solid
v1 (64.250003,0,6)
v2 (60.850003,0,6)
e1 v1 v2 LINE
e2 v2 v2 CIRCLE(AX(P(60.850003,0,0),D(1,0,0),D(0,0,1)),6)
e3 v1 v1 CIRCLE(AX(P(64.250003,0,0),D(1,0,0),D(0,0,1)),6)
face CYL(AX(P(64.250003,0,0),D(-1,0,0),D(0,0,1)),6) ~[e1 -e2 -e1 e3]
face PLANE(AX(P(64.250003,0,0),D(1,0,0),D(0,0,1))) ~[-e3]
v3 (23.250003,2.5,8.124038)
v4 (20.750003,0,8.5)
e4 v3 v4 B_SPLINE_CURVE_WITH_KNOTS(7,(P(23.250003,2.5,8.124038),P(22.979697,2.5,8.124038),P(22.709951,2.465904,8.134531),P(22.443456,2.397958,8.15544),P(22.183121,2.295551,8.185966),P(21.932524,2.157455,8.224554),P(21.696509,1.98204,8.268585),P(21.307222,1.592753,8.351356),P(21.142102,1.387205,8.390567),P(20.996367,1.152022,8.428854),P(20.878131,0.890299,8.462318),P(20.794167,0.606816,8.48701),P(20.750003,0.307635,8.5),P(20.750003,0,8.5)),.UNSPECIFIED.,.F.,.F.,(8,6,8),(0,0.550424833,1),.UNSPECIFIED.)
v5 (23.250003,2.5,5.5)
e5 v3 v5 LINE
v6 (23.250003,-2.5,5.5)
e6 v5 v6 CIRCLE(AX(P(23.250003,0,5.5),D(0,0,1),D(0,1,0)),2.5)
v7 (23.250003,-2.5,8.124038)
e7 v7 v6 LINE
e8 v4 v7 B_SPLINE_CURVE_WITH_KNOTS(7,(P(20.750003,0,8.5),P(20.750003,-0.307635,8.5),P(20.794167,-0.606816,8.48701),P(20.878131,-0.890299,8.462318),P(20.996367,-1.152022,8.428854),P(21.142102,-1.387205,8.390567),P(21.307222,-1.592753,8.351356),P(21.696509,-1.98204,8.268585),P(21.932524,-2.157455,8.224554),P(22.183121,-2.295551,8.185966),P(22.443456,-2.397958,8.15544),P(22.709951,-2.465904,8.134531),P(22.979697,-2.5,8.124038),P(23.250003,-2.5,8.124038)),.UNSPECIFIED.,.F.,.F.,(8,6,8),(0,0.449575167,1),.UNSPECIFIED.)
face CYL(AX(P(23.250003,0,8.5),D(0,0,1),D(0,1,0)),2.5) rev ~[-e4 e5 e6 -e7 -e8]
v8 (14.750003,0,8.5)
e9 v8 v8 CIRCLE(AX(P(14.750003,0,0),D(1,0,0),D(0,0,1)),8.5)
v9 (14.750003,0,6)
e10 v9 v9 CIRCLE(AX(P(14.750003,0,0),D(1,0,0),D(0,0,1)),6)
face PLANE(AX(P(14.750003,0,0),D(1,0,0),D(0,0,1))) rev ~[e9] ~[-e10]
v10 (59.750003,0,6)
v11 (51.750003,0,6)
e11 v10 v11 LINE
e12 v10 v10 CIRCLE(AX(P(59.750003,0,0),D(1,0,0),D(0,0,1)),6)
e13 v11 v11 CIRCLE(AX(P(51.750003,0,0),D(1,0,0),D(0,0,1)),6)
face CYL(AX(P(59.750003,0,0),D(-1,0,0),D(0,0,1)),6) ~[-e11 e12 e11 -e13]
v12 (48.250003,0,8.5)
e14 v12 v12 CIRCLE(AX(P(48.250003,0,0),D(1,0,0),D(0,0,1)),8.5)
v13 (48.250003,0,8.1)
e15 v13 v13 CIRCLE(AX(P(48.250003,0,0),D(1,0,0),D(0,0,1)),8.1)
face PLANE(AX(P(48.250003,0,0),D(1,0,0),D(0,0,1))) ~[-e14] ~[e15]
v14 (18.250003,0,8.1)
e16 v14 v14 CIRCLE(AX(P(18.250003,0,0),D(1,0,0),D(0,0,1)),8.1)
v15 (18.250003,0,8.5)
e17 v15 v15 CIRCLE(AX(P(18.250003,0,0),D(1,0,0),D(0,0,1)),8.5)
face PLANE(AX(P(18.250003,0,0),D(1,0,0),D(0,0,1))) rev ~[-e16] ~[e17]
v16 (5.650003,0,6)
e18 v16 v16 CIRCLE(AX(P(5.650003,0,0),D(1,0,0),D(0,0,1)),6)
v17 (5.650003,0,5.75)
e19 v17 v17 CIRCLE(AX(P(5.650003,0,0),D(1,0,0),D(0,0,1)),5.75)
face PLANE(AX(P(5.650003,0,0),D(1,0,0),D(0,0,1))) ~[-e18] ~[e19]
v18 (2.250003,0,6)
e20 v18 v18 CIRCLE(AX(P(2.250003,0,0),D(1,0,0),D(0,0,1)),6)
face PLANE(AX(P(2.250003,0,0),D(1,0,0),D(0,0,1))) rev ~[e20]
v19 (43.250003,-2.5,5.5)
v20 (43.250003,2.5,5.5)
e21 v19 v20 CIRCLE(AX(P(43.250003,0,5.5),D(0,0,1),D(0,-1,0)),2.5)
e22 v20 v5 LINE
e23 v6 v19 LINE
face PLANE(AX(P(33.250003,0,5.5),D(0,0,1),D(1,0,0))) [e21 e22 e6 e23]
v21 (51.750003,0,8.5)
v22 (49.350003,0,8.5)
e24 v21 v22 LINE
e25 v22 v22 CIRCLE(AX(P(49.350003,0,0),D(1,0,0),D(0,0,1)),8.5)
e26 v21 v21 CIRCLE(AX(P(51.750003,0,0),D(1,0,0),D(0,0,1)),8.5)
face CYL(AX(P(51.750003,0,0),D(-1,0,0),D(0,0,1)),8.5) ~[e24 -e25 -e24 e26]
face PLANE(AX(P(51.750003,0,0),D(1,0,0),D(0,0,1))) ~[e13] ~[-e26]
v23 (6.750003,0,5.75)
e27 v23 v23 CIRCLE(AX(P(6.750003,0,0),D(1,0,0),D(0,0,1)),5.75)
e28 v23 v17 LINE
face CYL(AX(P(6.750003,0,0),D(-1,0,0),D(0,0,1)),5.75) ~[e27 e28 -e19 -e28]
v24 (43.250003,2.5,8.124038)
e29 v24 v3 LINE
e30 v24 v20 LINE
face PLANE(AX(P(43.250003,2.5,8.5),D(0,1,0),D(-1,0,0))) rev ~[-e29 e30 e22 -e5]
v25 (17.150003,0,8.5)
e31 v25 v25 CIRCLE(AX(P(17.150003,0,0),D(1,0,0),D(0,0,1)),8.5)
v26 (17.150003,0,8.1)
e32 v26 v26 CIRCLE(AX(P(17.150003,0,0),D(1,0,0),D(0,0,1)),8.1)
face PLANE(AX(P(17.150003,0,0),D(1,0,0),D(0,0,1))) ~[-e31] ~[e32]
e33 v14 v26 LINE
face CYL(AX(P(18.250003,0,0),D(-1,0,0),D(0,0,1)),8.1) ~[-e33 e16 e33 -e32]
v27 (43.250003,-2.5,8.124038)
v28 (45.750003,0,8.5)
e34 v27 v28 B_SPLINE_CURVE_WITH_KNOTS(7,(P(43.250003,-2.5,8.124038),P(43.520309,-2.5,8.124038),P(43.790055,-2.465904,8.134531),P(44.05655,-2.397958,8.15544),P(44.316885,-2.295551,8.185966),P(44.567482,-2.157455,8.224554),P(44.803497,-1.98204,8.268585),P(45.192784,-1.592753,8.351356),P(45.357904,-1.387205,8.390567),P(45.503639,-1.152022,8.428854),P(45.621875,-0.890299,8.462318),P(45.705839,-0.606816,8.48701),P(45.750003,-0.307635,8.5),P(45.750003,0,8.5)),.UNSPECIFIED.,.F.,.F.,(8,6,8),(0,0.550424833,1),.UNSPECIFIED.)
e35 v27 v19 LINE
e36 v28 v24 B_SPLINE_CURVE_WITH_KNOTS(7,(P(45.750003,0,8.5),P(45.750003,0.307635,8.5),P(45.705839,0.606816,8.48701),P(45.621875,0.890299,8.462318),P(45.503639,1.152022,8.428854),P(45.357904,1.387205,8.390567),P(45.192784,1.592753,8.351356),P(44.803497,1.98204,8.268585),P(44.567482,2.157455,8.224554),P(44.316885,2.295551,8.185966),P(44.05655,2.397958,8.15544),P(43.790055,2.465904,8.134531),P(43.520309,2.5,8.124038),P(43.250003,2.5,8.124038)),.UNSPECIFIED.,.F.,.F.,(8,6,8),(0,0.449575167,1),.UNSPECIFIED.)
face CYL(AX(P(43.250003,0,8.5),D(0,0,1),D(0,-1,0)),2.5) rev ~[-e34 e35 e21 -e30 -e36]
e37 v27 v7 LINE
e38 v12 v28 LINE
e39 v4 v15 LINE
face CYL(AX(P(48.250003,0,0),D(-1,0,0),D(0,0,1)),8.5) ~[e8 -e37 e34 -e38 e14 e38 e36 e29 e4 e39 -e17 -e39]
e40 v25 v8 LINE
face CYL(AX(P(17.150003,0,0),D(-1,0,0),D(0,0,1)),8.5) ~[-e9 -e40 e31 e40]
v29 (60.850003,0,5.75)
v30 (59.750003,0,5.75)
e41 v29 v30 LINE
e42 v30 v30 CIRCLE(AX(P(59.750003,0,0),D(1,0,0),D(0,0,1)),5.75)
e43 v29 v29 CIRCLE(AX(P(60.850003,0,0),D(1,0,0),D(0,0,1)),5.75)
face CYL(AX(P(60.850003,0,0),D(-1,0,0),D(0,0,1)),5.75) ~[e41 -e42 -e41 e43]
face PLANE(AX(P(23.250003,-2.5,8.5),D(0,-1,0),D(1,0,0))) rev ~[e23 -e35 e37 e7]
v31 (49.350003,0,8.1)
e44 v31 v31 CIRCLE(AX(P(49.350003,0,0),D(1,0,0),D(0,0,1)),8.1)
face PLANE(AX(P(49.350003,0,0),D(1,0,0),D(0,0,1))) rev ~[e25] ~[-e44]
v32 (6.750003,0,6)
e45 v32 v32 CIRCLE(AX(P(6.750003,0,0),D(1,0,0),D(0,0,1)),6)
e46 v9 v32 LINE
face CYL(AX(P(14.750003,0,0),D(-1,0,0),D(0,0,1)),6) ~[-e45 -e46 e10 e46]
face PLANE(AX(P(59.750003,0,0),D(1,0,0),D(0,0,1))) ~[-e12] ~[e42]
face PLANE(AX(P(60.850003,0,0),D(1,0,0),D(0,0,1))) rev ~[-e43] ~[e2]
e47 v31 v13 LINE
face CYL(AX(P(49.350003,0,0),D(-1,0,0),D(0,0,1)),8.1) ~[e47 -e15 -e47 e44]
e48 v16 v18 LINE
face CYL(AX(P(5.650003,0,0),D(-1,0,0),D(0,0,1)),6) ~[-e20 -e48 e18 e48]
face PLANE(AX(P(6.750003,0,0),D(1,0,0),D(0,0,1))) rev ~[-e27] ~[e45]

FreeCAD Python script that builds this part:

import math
import FreeCAD as App
import Part
import Sketcher
from FreeCAD import Vector
Q = App.Units.Quantity

doc = App.newDocument("Part")
body = doc.addObject("PartDesign::Body", "Body")

sketch1 = body.newObject("Sketcher::SketchObject", "Sketch")
sketch1.AttachmentSupport = (doc.getObject("XZ_Plane"), [""])
sketch1.MapMode = "FlatFace"
sketch1.addGeometry([
    Part.LineSegment(Vector(2.25, 6, 0), Vector(2.25, 0, 0)),
    Part.LineSegment(Vector(2.25, 0, 0), Vector(64.25, 0, 0)),
    Part.LineSegment(Vector(64.25, 0, 0), Vector(64.25, 6, 0)),
    Part.LineSegment(Vector(64.25, 6, 0), Vector(60.85, 6, 0)),
    Part.LineSegment(Vector(60.85, 6, 0), Vector(60.85, 5.75, 0)),
    Part.LineSegment(Vector(60.85, 5.75, 0), Vector(59.75, 5.75, 0)),
    Part.LineSegment(Vector(59.75, 5.75, 0), Vector(59.75, 6, 0)),
    Part.LineSegment(Vector(59.75, 6, 0), Vector(51.75, 6, 0)),
    Part.LineSegment(Vector(51.75, 6, 0), Vector(51.75, 8.5, 0)),
    Part.LineSegment(Vector(51.75, 8.5, 0), Vector(49.35, 8.5, 0)),
    Part.LineSegment(Vector(49.35, 8.5, 0), Vector(49.35, 8.1, 0)),
    Part.LineSegment(Vector(49.35, 8.1, 0), Vector(48.25, 8.1, 0)),
    Part.LineSegment(Vector(48.25, 8.1, 0), Vector(48.25, 8.5, 0)),
    Part.LineSegment(Vector(48.25, 8.5, 0), Vector(18.25, 8.5, 0)),
    Part.LineSegment(Vector(18.25, 8.5, 0), Vector(18.25, 8.1, 0)),
    Part.LineSegment(Vector(18.25, 8.1, 0), Vector(17.15, 8.1, 0)),
    Part.LineSegment(Vector(17.15, 8.1, 0), Vector(17.15, 8.5, 0)),
    Part.LineSegment(Vector(17.15, 8.5, 0), Vector(14.75, 8.5, 0)),
    Part.LineSegment(Vector(14.75, 8.5, 0), Vector(14.75, 6, 0)),
    Part.LineSegment(Vector(14.75, 6, 0), Vector(6.75, 6, 0)),
    Part.LineSegment(Vector(6.75, 6, 0), Vector(6.75, 5.75, 0)),
    Part.LineSegment(Vector(6.75, 5.75, 0), Vector(5.65, 5.75, 0)),
    Part.LineSegment(Vector(5.65, 5.75, 0), Vector(5.65, 6, 0)),
    Part.LineSegment(Vector(5.65, 6, 0), Vector(2.25, 6, 0)),
], False)
sketch1.addConstraint([
    Sketcher.Constraint("Coincident", 0, 2, 1, 1),
    Sketcher.Constraint("Coincident", 1, 2, 2, 1),
    Sketcher.Constraint("Coincident", 2, 2, 3, 1),
    Sketcher.Constraint("Coincident", 3, 2, 4, 1),
    Sketcher.Constraint("Coincident", 4, 2, 5, 1),
    Sketcher.Constraint("Coincident", 5, 2, 6, 1),
    Sketcher.Constraint("Coincident", 6, 2, 7, 1),
    Sketcher.Constraint("Coincident", 7, 2, 8, 1),
    Sketcher.Constraint("Coincident", 8, 2, 9, 1),
    Sketcher.Constraint("Coincident", 9, 2, 10, 1),
    Sketcher.Constraint("Coincident", 10, 2, 11, 1),
    Sketcher.Constraint("Coincident", 11, 2, 12, 1),
    Sketcher.Constraint("Coincident", 12, 2, 13, 1),
    Sketcher.Constraint("Coincident", 13, 2, 14, 1),
    Sketcher.Constraint("Coincident", 14, 2, 15, 1),
    Sketcher.Constraint("Coincident", 15, 2, 16, 1),
    Sketcher.Constraint("Coincident", 16, 2, 17, 1),
    Sketcher.Constraint("Coincident", 17, 2, 18, 1),
    Sketcher.Constraint("Coincident", 18, 2, 19, 1),
    Sketcher.Constraint("Coincident", 19, 2, 20, 1),
    Sketcher.Constraint("Coincident", 20, 2, 21, 1),
    Sketcher.Constraint("Coincident", 21, 2, 22, 1),
    Sketcher.Constraint("Coincident", 22, 2, 23, 1),
    Sketcher.Constraint("Coincident", 23, 2, 0, 1),
    Sketcher.Constraint("Vertical", 0),
    Sketcher.Constraint("Horizontal", 1),
    Sketcher.Constraint("Vertical", 2),
    Sketcher.Constraint("Horizontal", 3),
    Sketcher.Constraint("Vertical", 4),
    Sketcher.Constraint("Horizontal", 5),
    Sketcher.Constraint("Vertical", 6),
    Sketcher.Constraint("Horizontal", 7),
    Sketcher.Constraint("Vertical", 8),
    Sketcher.Constraint("Horizontal", 9),
    Sketcher.Constraint("Vertical", 10),
    Sketcher.Constraint("Horizontal", 11),
    Sketcher.Constraint("Vertical", 12),
    Sketcher.Constraint("Horizontal", 13),
    Sketcher.Constraint("Vertical", 14),
    Sketcher.Constraint("Horizontal", 15),
    Sketcher.Constraint("Vertical", 16),
    Sketcher.Constraint("Horizontal", 17),
    Sketcher.Constraint("Vertical", 18),
    Sketcher.Constraint("Horizontal", 19),
    Sketcher.Constraint("Vertical", 20),
    Sketcher.Constraint("Horizontal", 21),
    Sketcher.Constraint("Vertical", 22),
    Sketcher.Constraint("Horizontal", 23),
    Sketcher.Constraint("PointOnObject", 0, 2, -1),
    Sketcher.Constraint("Horizontal", 3, 2, 6, 2),
    Sketcher.Constraint("Horizontal", 9, 2, 12, 2),
    Sketcher.Constraint("Horizontal", 11, 2, 14, 2),
    Sketcher.Constraint("Horizontal", 13, 2, 16, 2),
    Sketcher.Constraint("Horizontal", 7, 2, 18, 2),
    Sketcher.Constraint("Horizontal", 5, 2, 20, 2),
    Sketcher.Constraint("Horizontal", 19, 2, 22, 2),
    Sketcher.Constraint("Equal", 5, 11),
    Sketcher.Constraint("Equal", 11, 15),
    Sketcher.Constraint("Equal", 9, 17),
    Sketcher.Constraint("Equal", 7, 19),
    Sketcher.Constraint("Equal", 15, 21),
    Sketcher.Constraint("Equal", 3, 23),
    Sketcher.Constraint("DistanceX", 1, 1, 1, 2, Q("62 mm")),
    Sketcher.Constraint("DistanceX", 7, 2, 7, 1, Q("8 mm")),
    Sketcher.Constraint("DistanceX", 13, 2, 13, 1, Q("30 mm")),
    Sketcher.Constraint("DistanceY", 0, 2, 0, 1, Q("6 mm")),
    Sketcher.Constraint("DistanceX", 3, 2, 3, 1, Q("3.4 mm")),
    Sketcher.Constraint("DistanceX", 5, 2, 5, 1, Q("1.1 mm")),
    Sketcher.Constraint("DistanceY", 8, 1, 8, 2, Q("2.5 mm")),
    Sketcher.Constraint("DistanceY", 10, 2, 10, 1, Q("0.4 mm")),
    Sketcher.Constraint("DistanceY", 4, 2, 4, 1, Q("0.25 mm")),
    Sketcher.Constraint("DistanceX", -1, 1, 0, 2, Q("2.250003 mm")),
])
revolution = body.newObject("PartDesign::Revolution", "Revolution")
revolution.Profile = sketch1
revolution.ReferenceAxis = (sketch1, ["H_Axis"])
revolution.Angle = 360

sketch2 = body.newObject("Sketcher::SketchObject", "Sketch001")
sketch2.AttachmentSupport = (doc.getObject("XY_Plane"), [""])
sketch2.MapMode = "FlatFace"
sketch2.AttachmentOffset = App.Placement(Vector(0, 0, 8.5), App.Rotation())
sketch2.addGeometry([
    Part.LineSegment(Vector(43.3, 2.5, 0), Vector(23.3, 2.5, 0)),
    Part.ArcOfCircle(Part.Circle(Vector(23.3, 0, 0), Vector(0, 0, 1), 2.5), math.radians(90), math.radians(270)),
    Part.LineSegment(Vector(23.3, -2.5, 0), Vector(43.3, -2.5, 0)),
    Part.ArcOfCircle(Part.Circle(Vector(43.3, 0, 0), Vector(0, 0, 1), 2.5), math.radians(-90), math.radians(90)),
], False)
sketch2.addConstraint([
    Sketcher.Constraint("Tangent", 0, 2, 1, 1),
    Sketcher.Constraint("Tangent", 1, 2, 2, 1),
    Sketcher.Constraint("Tangent", 2, 2, 3, 1),
    Sketcher.Constraint("Tangent", 3, 2, 0, 1),
    Sketcher.Constraint("Horizontal", 0),
    Sketcher.Constraint("Horizontal", 2),
    Sketcher.Constraint("PointOnObject", 1, 3, -1),
    Sketcher.Constraint("Radius", 1, Q("2.5 mm")),
    Sketcher.Constraint("DistanceX", 0, 2, 0, 1, Q("20 mm")),
    Sketcher.Constraint("DistanceX", -1, 1, 1, 3, Q("23.250003 mm")),
])
pocket1 = body.newObject("PartDesign::Pocket", "Pocket")
pocket1.Profile = sketch2
pocket1.Length = 3

doc.recompute()
